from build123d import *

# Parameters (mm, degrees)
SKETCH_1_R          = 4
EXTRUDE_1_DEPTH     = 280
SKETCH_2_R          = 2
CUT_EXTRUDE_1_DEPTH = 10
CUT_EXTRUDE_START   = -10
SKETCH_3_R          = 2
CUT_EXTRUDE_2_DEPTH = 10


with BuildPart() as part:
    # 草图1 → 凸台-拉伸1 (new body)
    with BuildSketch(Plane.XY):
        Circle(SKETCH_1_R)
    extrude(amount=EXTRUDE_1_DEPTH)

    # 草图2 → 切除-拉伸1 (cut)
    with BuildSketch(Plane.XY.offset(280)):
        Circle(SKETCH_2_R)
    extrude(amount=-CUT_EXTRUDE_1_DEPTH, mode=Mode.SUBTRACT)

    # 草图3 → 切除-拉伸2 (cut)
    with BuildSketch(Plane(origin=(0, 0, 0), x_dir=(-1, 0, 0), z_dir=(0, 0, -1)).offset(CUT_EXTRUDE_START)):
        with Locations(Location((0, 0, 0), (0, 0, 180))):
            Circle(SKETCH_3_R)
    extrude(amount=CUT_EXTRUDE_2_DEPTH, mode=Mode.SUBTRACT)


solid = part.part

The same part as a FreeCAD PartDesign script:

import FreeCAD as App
import Part
import Sketcher

V = App.Vector
Q = App.Units.Quantity

doc = App.newDocument("Part")
body = doc.addObject("PartDesign::Body", "Body")

# Sketch on XY plane
sketch1 = body.newObject("Sketcher::SketchObject", "Sketch")
sketch1.AttachmentSupport = (doc.getObject("XY_Plane"), [""])
sketch1.MapMode = "FlatFace"
sketch1.addGeometry(Part.Circle(V(0, 0, 0), V(0, 0, 1), 4), False)
sketch1.addConstraint(Sketcher.Constraint("Coincident", 0, 3, -1, 1))
sketch1.addConstraint(Sketcher.Constraint("Diameter", 0, Q("8 mm")))
pad1 = body.newObject("PartDesign::Pad", "Pad")
pad1.Profile = sketch1
pad1.Length = 280

# Sketch on XY plane
sketch2 = body.newObject("Sketcher::SketchObject", "Sketch001")
sketch2.AttachmentSupport = (doc.getObject("XY_Plane"), [""])
sketch2.MapMode = "FlatFace"
sketch2.AttachmentOffset = App.Placement(V(0, 0, 280), App.Rotation())
sketch2.addGeometry(Part.Circle(V(0, 0, 0), V(0, 0, 1), 2), False)
sketch2.addConstraint(Sketcher.Constraint("Coincident", 0, 3, -1, 1))
sketch2.addConstraint(Sketcher.Constraint("Diameter", 0, Q("4 mm")))
pocket1 = body.newObject("PartDesign::Pocket", "Pocket")
pocket1.Profile = sketch2
pocket1.Length = 10

# Sketch on XY plane
sketch3 = body.newObject("Sketcher::SketchObject", "Sketch002")
sketch3.AttachmentSupport = (doc.getObject("XY_Plane"), [""])
sketch3.MapMode = "FlatFace"
sketch3.AttachmentOffset = App.Placement(V(0, 0, 10), App.Rotation())
sketch3.addGeometry(Part.Circle(V(0, 0, 0), V(0, 0, 1), 2), False)
sketch3.addConstraint(Sketcher.Constraint("Coincident", 0, 3, -1, 1))
sketch3.addConstraint(Sketcher.Constraint("Diameter", 0, Q("4 mm")))
pocket2 = body.newObject("PartDesign::Pocket", "Pocket001")
pocket2.Profile = sketch3
pocket2.Length = 10

doc.recompute()
